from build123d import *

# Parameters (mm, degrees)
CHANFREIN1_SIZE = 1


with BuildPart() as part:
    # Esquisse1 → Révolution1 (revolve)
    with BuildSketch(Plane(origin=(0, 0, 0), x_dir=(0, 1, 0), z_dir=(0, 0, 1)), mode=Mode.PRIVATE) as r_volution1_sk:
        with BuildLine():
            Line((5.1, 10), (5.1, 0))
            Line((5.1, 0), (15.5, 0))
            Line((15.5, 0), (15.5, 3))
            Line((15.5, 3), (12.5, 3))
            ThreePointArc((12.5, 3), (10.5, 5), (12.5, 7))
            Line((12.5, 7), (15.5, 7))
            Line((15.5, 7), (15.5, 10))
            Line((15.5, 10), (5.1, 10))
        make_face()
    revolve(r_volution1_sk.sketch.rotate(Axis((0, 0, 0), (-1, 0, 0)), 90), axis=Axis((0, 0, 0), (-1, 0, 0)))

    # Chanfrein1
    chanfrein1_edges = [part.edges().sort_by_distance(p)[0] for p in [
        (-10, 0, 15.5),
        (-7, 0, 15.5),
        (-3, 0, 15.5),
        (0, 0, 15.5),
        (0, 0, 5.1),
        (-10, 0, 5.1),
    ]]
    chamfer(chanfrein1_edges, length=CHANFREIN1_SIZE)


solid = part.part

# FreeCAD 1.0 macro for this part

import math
import FreeCAD as App
import Part
import Sketcher

V = App.Vector


def edges_at(feature, points):
    """Names of the edges that pass closest to the given points."""
    edges = feature.Shape.Edges
    near = lambda p: min(range(len(edges)), key=lambda i: edges[i].distToShape(Part.Vertex(*p))[0])
    return sorted({f"Edge{near(p) + 1}" for p in points})

doc = App.newDocument("Part")
params = doc.addObject("Spreadsheet::Sheet", "Params")
for row, (alias, value) in enumerate([
    ("sketch1_radius", "2 mm"),
    ("sketch1_width", "10 mm"),
    ("sketch1_height", "10.4 mm"),
    ("revolution_angle", "360 deg"),
    ("chamfer_size", "1 mm"),
], start=1):
    params.set(f"A{row}", alias)
    params.set(f"B{row}", "=" + value)
    params.setAlias(f"B{row}", alias)

body = doc.addObject("PartDesign::Body", "Body")

sketch1 = doc.addObject("Sketcher::SketchObject", "Sketch")
body.addObject(sketch1)
sketch1.AttachmentSupport = (doc.XY_Plane, [""])
sketch1.MapMode = "FlatFace"
sketch1.addGeometry(Part.LineSegment(V(-10, 5.1, 0), V(0, 5.1, 0)), False)
sketch1.addGeometry(Part.LineSegment(V(0, 5.1, 0), V(0, 15.5, 0)), False)
sketch1.addGeometry(Part.LineSegment(V(0, 15.5, 0), V(-3, 15.5, 0)), False)
sketch1.addGeometry(Part.LineSegment(V(-3, 15.5, 0), V(-3, 12.5, 0)), False)
sketch1.addGeometry(Part.ArcOfCircle(Part.Circle(V(-5, 12.5, 0), V(0, 0, 1), 2), math.radians(180), math.radians(360)), False)
sketch1.addGeometry(Part.LineSegment(V(-7, 12.5, 0), V(-7, 15.5, 0)), False)
sketch1.addGeometry(Part.LineSegment(V(-7, 15.5, 0), V(-10, 15.5, 0)), False)
sketch1.addGeometry(Part.LineSegment(V(-10, 15.5, 0), V(-10, 5.1, 0)), False)
sketch1.addConstraint(Sketcher.Constraint("Coincident", 0, 2, 1, 1))
sketch1.addConstraint(Sketcher.Constraint("Coincident", 1, 2, 2, 1))
sketch1.addConstraint(Sketcher.Constraint("Coincident", 2, 2, 3, 1))
sketch1.addConstraint(Sketcher.Constraint("Tangent", 3, 2, 4, 2))
sketch1.addConstraint(Sketcher.Constraint("Tangent", 4, 1, 5, 1))
sketch1.addConstraint(Sketcher.Constraint("Coincident", 5, 2, 6, 1))
sketch1.addConstraint(Sketcher.Constraint("Coincident", 6, 2, 7, 1))
sketch1.addConstraint(Sketcher.Constraint("Coincident", 7, 2, 0, 1))
sketch1.addConstraint(Sketcher.Constraint("Horizontal", 0))
sketch1.addConstraint(Sketcher.Constraint("Vertical", 1))
sketch1.addConstraint(Sketcher.Constraint("Horizontal", 2))
sketch1.addConstraint(Sketcher.Constraint("Vertical", 3))
sketch1.addConstraint(Sketcher.Constraint("Vertical", 5))
sketch1.addConstraint(Sketcher.Constraint("Horizontal", 6))
sketch1.addConstraint(Sketcher.Constraint("Vertical", 7))
sketch1.addConstraint(Sketcher.Constraint("PointOnObject", 0, 2, -2))
sketch1.addConstraint(Sketcher.Constraint("Horizontal", 2, 2, 5, 2))
sketch1.addConstraint(Sketcher.Constraint("Equal", 2, 6))
sketch1.addConstraint(Sketcher.Constraint("Equal", 6, 3))
sketch1.addConstraint(Sketcher.Constraint("Radius", 4, 2.0))
sketch1.addConstraint(Sketcher.Constraint("DistanceX", 0, 1, 0, 2, 10.0))
sketch1.addConstraint(Sketcher.Constraint("DistanceY", 1, 1, 1, 2, 10.4))
sketch1.addConstraint(Sketcher.Constraint("DistanceY", -1, 1, 4, 3, 12.5))
sketch1.setExpression("Constraints[19]", "Params.sketch1_radius")
sketch1.setExpression("Constraints[20]", "Params.sketch1_width")
sketch1.setExpression("Constraints[21]", "Params.sketch1_height")
revolution = doc.addObject("PartDesign::Revolution", "Revolution")
body.addObject(revolution)
revolution.Profile = sketch1
revolution.ReferenceAxis = (sketch1, ["H_Axis"])
revolution.setExpression("Angle", "Params.revolution_angle")
doc.recompute()

chamfer = doc.addObject("PartDesign::Chamfer", "Chamfer")
body.addObject(chamfer)
chamfer.Base = (revolution, edges_at(revolution, [
    (-10, 0, 15.5),
    (-7, 0, 15.5),
    (-3, 0, 15.5),
    (0, 0, 15.5),
    (0, 0, 5.1),
    (-10, 0, 5.1),
]))
chamfer.setExpression("Size", "Params.chamfer_size")

doc.recompute()
